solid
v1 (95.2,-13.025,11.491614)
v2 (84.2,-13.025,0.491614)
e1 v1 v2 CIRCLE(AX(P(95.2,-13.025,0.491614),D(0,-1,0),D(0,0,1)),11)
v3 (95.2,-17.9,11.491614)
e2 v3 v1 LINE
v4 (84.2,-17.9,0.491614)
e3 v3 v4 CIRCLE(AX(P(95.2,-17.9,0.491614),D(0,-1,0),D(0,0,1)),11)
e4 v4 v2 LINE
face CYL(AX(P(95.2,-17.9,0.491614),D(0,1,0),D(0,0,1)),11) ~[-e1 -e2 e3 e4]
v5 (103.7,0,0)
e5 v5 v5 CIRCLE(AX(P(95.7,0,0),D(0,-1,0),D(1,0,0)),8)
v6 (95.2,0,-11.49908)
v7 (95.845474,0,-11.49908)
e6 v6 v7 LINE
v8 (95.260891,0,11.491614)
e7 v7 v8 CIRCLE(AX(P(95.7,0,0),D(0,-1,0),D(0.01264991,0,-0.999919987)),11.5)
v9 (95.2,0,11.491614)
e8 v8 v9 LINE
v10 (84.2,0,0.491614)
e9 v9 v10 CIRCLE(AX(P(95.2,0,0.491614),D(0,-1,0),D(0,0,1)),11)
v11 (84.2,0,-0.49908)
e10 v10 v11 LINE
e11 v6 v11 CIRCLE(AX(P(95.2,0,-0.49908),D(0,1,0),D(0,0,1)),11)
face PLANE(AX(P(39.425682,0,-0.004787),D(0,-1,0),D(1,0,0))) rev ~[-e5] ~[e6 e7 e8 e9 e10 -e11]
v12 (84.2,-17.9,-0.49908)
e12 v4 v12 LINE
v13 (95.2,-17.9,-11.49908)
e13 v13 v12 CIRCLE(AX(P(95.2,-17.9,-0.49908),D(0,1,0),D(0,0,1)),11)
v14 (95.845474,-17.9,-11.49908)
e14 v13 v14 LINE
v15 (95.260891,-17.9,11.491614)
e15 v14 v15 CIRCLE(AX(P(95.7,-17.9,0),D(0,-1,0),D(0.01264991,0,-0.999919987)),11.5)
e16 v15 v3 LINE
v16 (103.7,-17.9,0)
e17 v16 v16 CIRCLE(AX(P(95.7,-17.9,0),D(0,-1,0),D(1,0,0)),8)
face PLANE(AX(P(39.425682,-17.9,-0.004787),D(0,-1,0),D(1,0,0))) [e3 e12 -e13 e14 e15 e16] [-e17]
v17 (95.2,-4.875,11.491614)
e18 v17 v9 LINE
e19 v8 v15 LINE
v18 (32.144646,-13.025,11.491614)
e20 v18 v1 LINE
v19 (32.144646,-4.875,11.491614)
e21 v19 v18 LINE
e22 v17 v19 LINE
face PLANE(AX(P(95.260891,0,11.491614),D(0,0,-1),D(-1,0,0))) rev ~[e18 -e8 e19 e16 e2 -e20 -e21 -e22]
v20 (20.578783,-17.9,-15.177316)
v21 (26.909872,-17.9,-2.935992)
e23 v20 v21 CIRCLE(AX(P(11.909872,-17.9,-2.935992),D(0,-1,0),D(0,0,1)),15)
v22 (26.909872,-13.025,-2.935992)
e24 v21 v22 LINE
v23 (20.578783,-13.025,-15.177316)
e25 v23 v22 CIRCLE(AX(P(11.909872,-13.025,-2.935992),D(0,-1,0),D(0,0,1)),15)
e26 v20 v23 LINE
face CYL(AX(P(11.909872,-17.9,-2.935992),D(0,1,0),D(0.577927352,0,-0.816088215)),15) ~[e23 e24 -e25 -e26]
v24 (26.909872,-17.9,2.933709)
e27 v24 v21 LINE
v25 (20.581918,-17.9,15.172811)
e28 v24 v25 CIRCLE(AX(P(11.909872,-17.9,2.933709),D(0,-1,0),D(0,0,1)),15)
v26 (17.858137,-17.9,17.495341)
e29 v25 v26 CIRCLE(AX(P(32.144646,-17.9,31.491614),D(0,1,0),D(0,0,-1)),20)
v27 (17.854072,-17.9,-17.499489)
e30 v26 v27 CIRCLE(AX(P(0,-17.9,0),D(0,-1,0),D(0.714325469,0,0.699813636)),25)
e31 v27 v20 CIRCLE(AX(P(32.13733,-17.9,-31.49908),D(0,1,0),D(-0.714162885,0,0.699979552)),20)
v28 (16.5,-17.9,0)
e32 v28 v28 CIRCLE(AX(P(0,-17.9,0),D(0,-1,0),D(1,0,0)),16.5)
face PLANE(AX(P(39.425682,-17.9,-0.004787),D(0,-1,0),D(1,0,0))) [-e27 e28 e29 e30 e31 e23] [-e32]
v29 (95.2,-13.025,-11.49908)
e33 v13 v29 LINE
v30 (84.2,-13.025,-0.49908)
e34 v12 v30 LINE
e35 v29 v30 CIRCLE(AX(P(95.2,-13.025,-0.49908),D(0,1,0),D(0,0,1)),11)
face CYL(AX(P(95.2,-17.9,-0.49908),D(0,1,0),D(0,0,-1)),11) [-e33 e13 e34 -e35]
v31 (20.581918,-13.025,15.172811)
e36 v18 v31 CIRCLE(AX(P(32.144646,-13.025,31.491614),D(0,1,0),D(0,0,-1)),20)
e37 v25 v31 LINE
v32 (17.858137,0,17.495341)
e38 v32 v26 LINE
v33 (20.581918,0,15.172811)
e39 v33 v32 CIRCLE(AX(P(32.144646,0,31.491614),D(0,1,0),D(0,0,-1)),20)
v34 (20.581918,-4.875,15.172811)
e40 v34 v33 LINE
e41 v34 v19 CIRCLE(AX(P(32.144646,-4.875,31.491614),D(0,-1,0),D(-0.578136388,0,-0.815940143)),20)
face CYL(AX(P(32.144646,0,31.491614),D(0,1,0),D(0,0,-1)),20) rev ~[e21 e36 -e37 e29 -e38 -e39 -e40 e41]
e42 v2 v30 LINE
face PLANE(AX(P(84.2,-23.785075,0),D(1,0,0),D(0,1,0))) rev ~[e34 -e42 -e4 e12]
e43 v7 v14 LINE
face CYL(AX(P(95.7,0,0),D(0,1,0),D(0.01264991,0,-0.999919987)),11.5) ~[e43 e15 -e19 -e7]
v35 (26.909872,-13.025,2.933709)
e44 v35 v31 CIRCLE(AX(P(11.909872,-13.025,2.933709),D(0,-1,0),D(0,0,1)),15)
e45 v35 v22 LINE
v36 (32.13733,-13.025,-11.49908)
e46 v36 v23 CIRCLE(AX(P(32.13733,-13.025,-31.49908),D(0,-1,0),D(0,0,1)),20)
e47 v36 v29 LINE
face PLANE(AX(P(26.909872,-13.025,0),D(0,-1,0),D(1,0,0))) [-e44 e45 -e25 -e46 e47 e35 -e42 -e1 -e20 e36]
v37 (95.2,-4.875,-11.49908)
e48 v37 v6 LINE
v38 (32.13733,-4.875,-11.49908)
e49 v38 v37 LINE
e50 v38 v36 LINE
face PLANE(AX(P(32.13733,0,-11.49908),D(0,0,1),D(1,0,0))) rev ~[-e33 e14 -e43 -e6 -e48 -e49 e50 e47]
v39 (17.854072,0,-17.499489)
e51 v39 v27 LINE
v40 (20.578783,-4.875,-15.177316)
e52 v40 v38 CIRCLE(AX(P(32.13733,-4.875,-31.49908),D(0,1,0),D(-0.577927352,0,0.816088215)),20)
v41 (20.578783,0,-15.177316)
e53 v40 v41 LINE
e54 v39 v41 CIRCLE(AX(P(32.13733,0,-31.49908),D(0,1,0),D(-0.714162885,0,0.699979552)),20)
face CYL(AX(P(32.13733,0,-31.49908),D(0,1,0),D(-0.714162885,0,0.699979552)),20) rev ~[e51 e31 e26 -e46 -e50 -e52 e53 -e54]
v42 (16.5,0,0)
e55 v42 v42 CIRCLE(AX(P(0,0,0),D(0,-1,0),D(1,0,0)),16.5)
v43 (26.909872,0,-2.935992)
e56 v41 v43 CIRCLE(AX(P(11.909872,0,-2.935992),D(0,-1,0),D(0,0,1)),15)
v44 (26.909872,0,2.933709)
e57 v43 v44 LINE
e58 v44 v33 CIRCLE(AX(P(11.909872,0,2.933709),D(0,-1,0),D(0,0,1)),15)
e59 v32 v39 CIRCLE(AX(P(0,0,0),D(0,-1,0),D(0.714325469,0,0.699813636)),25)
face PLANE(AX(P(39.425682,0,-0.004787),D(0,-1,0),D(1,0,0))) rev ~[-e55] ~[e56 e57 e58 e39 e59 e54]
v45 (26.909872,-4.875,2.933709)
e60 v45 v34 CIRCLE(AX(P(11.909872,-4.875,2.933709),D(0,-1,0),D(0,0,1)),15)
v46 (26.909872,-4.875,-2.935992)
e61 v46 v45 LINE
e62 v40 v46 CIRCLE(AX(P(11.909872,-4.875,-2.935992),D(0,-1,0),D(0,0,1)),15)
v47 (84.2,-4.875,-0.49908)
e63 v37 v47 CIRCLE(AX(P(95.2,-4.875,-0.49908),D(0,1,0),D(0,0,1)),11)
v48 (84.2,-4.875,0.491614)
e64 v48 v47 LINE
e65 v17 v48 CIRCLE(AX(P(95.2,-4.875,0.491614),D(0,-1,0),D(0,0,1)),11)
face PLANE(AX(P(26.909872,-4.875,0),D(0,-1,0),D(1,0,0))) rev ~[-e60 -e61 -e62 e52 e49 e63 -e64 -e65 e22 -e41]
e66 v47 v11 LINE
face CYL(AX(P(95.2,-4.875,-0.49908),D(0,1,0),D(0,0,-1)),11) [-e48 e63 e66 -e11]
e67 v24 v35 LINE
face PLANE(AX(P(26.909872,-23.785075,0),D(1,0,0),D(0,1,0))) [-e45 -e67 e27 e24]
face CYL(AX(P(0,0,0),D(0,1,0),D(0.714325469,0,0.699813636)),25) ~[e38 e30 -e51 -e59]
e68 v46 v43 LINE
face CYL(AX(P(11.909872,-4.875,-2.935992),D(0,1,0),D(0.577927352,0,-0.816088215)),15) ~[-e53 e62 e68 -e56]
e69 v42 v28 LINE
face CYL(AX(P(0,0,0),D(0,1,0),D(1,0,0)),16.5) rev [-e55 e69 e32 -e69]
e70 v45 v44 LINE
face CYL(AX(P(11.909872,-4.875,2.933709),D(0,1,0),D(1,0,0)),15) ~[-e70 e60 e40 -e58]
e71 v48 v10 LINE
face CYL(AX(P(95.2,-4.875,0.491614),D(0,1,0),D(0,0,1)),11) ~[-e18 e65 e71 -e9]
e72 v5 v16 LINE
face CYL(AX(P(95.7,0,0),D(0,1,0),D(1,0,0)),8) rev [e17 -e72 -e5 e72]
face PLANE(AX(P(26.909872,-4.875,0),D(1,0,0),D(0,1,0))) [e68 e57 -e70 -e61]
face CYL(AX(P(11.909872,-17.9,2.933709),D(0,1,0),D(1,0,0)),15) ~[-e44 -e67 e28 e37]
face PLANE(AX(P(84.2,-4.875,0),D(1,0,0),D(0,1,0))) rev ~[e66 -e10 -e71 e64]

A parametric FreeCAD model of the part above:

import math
import FreeCAD as App
import Part
import Sketcher

V = App.Vector
Q = App.Units.Quantity


def edges_at(feature, points):
    """Names of the edges that pass closest to the given points."""
    edges = feature.Shape.Edges
    near = lambda p: min(range(len(edges)), key=lambda i: edges[i].distToShape(Part.Vertex(*p))[0])
    return sorted({f"Edge{near(p) + 1}" for p in points})


def add_polygon(sketch, points):
    """Adds a closed chain of lines whose ends are joined by coincident constraints."""
    first, n = sketch.GeometryCount, len(points)
    for a, b in zip(points, points[1:] + points[:1]):
        sketch.addGeometry(Part.LineSegment(App.Vector(*a, 0), App.Vector(*b, 0)), False)
    for i in range(n):
        sketch.addConstraint(Sketcher.Constraint("Coincident", first + i, 2, first + (i + 1) % n, 1))

doc = App.newDocument("Part")
params = doc.addObject("Spreadsheet::Sheet", "Params")
for row, (alias, value) in enumerate([
    ("sketch1_diameter", "33 mm"),
    ("sketch1_diameter2", "16 mm"),
    ("sketch1_radius", "20 mm"),
    ("sketch1_radius2", "25 mm"),
    ("sketch1_radius3", "11.5 mm"),
    ("pad1_length", "17.9 mm"),
    ("fillet_radius", "11 mm"),
    ("fillet2_radius", "11 mm"),
    ("fillet3_radius", "11 mm"),
    ("fillet4_radius", "15 mm"),
], start=1):
    params.set(f"A{row}", alias)
    params.set(f"B{row}", "=" + value)
    params.setAlias(f"B{row}", alias)

body = doc.addObject("PartDesign::Body", "Body")

sketch1 = doc.addObject("Sketcher::SketchObject", "Sketch")
body.addObject(sketch1)
sketch1.AttachmentSupport = (doc.XZ_Plane, [""])
sketch1.MapMode = "FlatFace"
sketch1.addGeometry([
    Part.LineSegment(V(32, -11, 0), V(96, -11, 0)),
    Part.ArcOfCircle(Part.Circle(V(96, 0, 0), V(0, 0, 1), 12), math.radians(-89), math.radians(92)),
    Part.LineSegment(V(95, 11, 0), V(32, 11, 0)),
    Part.ArcOfCircle(Part.Circle(V(32, 31, 0), V(0, 0, 1), 20), math.radians(-136), math.radians(-90)),
    Part.ArcOfCircle(Part.Circle(V(0, 0, 0), V(0, 0, 1), 25), math.radians(44), math.radians(316)),
    Part.ArcOfCircle(Part.Circle(V(32, -31, 0), V(0, 0, 1), 20), math.radians(90), math.radians(136)),
    Part.Circle(V(0, 0, 0), V(0, 0, 1), 16),
    Part.Circle(V(96, 0, 0), V(0, 0, 1), 8),
], False)
sketch1.addConstraint([
    Sketcher.Constraint("Coincident", 0, 2, 1, 1),
    Sketcher.Constraint("Coincident", 1, 2, 2, 1),
    Sketcher.Constraint("Tangent", 2, 2, 3, 2),
    Sketcher.Constraint("Tangent", 3, 1, 4, 1),
    Sketcher.Constraint("Tangent", 4, 2, 5, 2),
    Sketcher.Constraint("Tangent", 5, 1, 0, 1),
    Sketcher.Constraint("Horizontal", 0),
    Sketcher.Constraint("Horizontal", 2),
    Sketcher.Constraint("Coincident", 4, 3, -1, 1),
    Sketcher.Constraint("Coincident", 6, 3, -1, 1),
    Sketcher.Constraint("Coincident", 7, 3, 1, 3),
    Sketcher.Constraint("Equal", 3, 5),
    Sketcher.Constraint("PointOnObject", 1, 3, -1),
    Sketcher.Constraint("Diameter", 6, Q("33 mm")),
    Sketcher.Constraint("Diameter", 7, Q("16 mm")),
    Sketcher.Constraint("Radius", 3, Q("20 mm")),
    Sketcher.Constraint("Radius", 4, Q("25 mm")),
    Sketcher.Constraint("Radius", 1, Q("11.5 mm")),
    Sketcher.Constraint("DistanceX", -1, 1, 1, 3, Q("95.7 mm")),
    Sketcher.Constraint("DistanceX", 0, 1, 0, 2, Q("63.708144 mm")),
    Sketcher.Constraint("DistanceX", 2, 2, 2, 1, Q("63.116245 mm")),
])
sketch1.setExpression("Constraints[13]", "Params.sketch1_diameter")
sketch1.setExpression("Constraints[14]", "Params.sketch1_diameter2")
sketch1.setExpression("Constraints[15]", "Params.sketch1_radius")
sketch1.setExpression("Constraints[16]", "Params.sketch1_radius2")
sketch1.setExpression("Constraints[17]", "Params.sketch1_radius3")
pad1 = doc.addObject("PartDesign::Pad", "Pad")
body.addObject(pad1)
pad1.Profile = sketch1
pad1.setExpression("Length", "Params.pad1_length")

sketch2 = doc.addObject("Sketcher::SketchObject", "Sketch001")
body.addObject(sketch2)
sketch2.AttachmentSupport = (doc.XY_Plane, [""])
sketch2.MapMode = "FlatFace"
add_polygon(sketch2, [(27, 6), (27, -5), (84, -5), (84, 6)])
add_polygon(sketch2, [(27, -13), (27, -24), (84, -24), (84, -13)])
sketch2.addConstraint([
    Sketcher.Constraint("Vertical", 0),
    Sketcher.Constraint("Horizontal", 1),
    Sketcher.Constraint("Vertical", 2),
    Sketcher.Constraint("Horizontal", 3),
    Sketcher.Constraint("Vertical", 4),
    Sketcher.Constraint("Horizontal", 5),
    Sketcher.Constraint("Vertical", 6),
    Sketcher.Constraint("Horizontal", 7),
    Sketcher.Constraint("Vertical", 3, 2, 4, 2),
    Sketcher.Constraint("Vertical", 2, 2, 5, 2),
    Sketcher.Constraint("DistanceX", -1, 1, 1, 2, Q("84.2 mm")),
    Sketcher.Constraint("DistanceY", 6, 2, 1, 2, Q("8.15 mm")),
    Sketcher.Constraint("DistanceY", 0, 2, -1, 1, Q("4.875 mm")),
    Sketcher.Constraint("DistanceX", 1, 1, 1, 2, Q("57.290128 mm")),
    Sketcher.Constraint("DistanceY", 0, 2, 0, 1, Q("11.043647 mm")),
    Sketcher.Constraint("DistanceY", 4, 2, 4, 1, Q("10.760075 mm")),
])
pocket1 = doc.addObject("PartDesign::Pocket", "Pocket")
body.addObject(pocket1)
pocket1.Profile = sketch2
pocket1.Type = "ThroughAll"
pocket1.Midplane = True
doc.recompute()

fillet = doc.addObject("PartDesign::Fillet", "Fillet")
body.addObject(fillet)
fillet.Base = (pocket1, edges_at(pocket1, [(84.2, -2.438, -11.499)]))
fillet.setExpression("Radius", "Params.fillet_radius")
doc.recompute()

fillet2 = doc.addObject("PartDesign::Fillet", "Fillet001")
body.addObject(fillet2)
fillet2.Base = (fillet, edges_at(fillet, [(84.2, -2.438, 11.492)]))
fillet2.setExpression("Radius", "Params.fillet2_radius")
doc.recompute()

fillet3 = doc.addObject("PartDesign::Fillet", "Fillet002")
body.addObject(fillet3)
fillet3.Base = (fillet2, edges_at(fillet2, [(84.2, -15.463, -11.499), (84.2, -15.463, 11.492)]))
fillet3.setExpression("Radius", "Params.fillet3_radius")
doc.recompute()

fillet4 = doc.addObject("PartDesign::Fillet", "Fillet003")
body.addObject(fillet4)
fillet4.Base = (fillet3, edges_at(fillet3, [
    (26.91, -2.438, -12.194),
    (26.91, -2.438, 12.189),
    (26.91, -15.463, -12.194),
    (26.91, -15.463, 12.189),
]))
fillet4.setExpression("Radius", "Params.fillet4_radius")

doc.recompute()
